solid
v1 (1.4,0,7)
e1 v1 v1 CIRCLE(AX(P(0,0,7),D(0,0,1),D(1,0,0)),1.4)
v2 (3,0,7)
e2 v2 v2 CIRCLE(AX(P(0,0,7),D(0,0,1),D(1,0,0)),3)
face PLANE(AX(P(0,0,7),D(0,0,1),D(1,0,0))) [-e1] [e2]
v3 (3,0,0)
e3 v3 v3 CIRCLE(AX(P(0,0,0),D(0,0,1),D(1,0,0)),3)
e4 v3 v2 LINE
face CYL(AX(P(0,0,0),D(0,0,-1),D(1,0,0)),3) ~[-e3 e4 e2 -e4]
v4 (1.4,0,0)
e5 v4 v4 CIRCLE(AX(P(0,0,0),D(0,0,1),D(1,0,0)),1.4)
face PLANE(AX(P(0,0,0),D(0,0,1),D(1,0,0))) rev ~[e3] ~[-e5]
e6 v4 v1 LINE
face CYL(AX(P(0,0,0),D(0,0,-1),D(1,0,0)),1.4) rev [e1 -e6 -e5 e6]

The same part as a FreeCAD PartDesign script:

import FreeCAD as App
import Part
import Sketcher

V = App.Vector

doc = App.newDocument("Part")
body = doc.addObject("PartDesign::Body", "Body")

# Sketch on XY plane
sketch1 = body.newObject("Sketcher::SketchObject", "Sketch")
sketch1.AttachmentSupport = (doc.getObject("XY_Plane"), [""])
sketch1.MapMode = "FlatFace"
sketch1.addGeometry(Part.Circle(V(0, 0, 0), V(0, 0, 1), 3), False)
sketch1.addGeometry(Part.Circle(V(0, 0, 0), V(0, 0, 1), 1.4), False)
sketch1.addConstraint(Sketcher.Constraint("Coincident", 0, 3, -1, 1))
sketch1.addConstraint(Sketcher.Constraint("Coincident", 1, 3, -1, 1))
sketch1.addConstraint(Sketcher.Constraint("Diameter", 0, 6.0))
sketch1.addConstraint(Sketcher.Constraint("Diameter", 1, 2.8))
pad1 = body.newObject("PartDesign::Pad", "Pad")
pad1.Profile = sketch1
pad1.Length = 7

doc.recompute()
